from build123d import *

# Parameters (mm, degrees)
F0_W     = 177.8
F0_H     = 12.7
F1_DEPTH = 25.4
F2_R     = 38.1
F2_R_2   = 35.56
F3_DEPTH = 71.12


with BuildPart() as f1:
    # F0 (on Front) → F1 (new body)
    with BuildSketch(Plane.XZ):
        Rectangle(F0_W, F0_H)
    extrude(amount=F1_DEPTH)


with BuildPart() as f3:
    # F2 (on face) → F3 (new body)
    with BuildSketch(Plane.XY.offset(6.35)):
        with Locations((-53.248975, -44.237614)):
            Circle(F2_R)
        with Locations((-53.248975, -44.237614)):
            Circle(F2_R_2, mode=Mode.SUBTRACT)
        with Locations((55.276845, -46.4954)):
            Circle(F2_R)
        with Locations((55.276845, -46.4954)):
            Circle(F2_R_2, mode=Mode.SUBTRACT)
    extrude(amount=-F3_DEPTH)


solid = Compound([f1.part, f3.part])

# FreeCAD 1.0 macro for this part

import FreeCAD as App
import Part
import Sketcher
from FreeCAD import Vector
Q = App.Units.Quantity


def add_polygon(sketch, points):
    """Adds a closed chain of lines whose ends are joined by coincident constraints."""
    first, n = sketch.GeometryCount, len(points)
    for a, b in zip(points, points[1:] + points[:1]):
        sketch.addGeometry(Part.LineSegment(App.Vector(*a, 0), App.Vector(*b, 0)), False)
    for i in range(n):
        sketch.addConstraint(Sketcher.Constraint("Coincident", first + i, 2, first + (i + 1) % n, 1))

doc = App.newDocument("Part")
params = doc.addObject("Spreadsheet::Sheet", "Params")
for row, (alias, value) in enumerate([
    ("sketch1_width", "7 in"),
    ("sketch1_height", "0.5 in"),
    ("pad1_length", "1 in"),
    ("sketch2_diameter", "3 in"),
    ("sketch2_diameter2", "2.8 in"),
    ("pad2_length", "2.8 in"),
], start=1):
    params.set(f"A{row}", alias)
    params.set(f"B{row}", "=" + value)
    params.setAlias(f"B{row}", alias)

body = doc.addObject("PartDesign::Body", "Body")

sketch1 = body.newObject("Sketcher::SketchObject", "Sketch")
sketch1.AttachmentSupport = (doc.getObject("XZ_Plane"), [""])
sketch1.MapMode = "FlatFace"
add_polygon(sketch1, [(-89, 6), (-89, -6), (89, -6), (89, 6)])
sketch1.addConstraint(Sketcher.Constraint("Vertical", 0))
sketch1.addConstraint(Sketcher.Constraint("Horizontal", 1))
sketch1.addConstraint(Sketcher.Constraint("Vertical", 2))
sketch1.addConstraint(Sketcher.Constraint("Horizontal", 3))
sketch1.addConstraint(Sketcher.Constraint("Symmetric", 0, 2, 2, 2, -1, 1))
sketch1.addConstraint(Sketcher.Constraint("DistanceX", 1, 1, 1, 2, Q("7 in")))
sketch1.addConstraint(Sketcher.Constraint("DistanceY", 0, 2, 0, 1, Q("0.5 in")))
sketch1.setExpression("Constraints[9]", "Params.sketch1_width")
sketch1.setExpression("Constraints[10]", "Params.sketch1_height")
pad1 = body.newObject("PartDesign::Pad", "Pad")
pad1.Profile = sketch1
pad1.setExpression("Length", "Params.pad1_length")
body2 = doc.addObject("PartDesign::Body", "Body001")
body2.AllowCompound = True

sketch2 = body2.newObject("Sketcher::SketchObject", "Sketch001")
sketch2.AttachmentSupport = (doc.getObject("XY_Plane001"), [""])
sketch2.MapMode = "FlatFace"
sketch2.AttachmentOffset = App.Placement(Vector(0, 0, 0.25 * 25.4), App.Rotation())
sketch2.addGeometry(Part.Circle(Vector(-53, -44, 0), Vector(0, 0, 1), 38), False)
sketch2.addGeometry(Part.Circle(Vector(-53, -44, 0), Vector(0, 0, 1), 36), False)
sketch2.addGeometry(Part.Circle(Vector(55, -46, 0), Vector(0, 0, 1), 38), False)
sketch2.addGeometry(Part.Circle(Vector(55, -46, 0), Vector(0, 0, 1), 36), False)
sketch2.addConstraint(Sketcher.Constraint("Coincident", 1, 3, 0, 3))
sketch2.addConstraint(Sketcher.Constraint("Coincident", 3, 3, 2, 3))
sketch2.addConstraint(Sketcher.Constraint("Equal", 0, 2))
sketch2.addConstraint(Sketcher.Constraint("Equal", 1, 3))
sketch2.addConstraint(Sketcher.Constraint("Diameter", 0, Q("3 in")))
sketch2.addConstraint(Sketcher.Constraint("Diameter", 1, Q("2.8 in")))
sketch2.addConstraint(Sketcher.Constraint("DistanceY", 2, 3, -1, 1, Q("46.4954 mm")))
sketch2.addConstraint(Sketcher.Constraint("DistanceX", 0, 3, 2, 3, Q("108.52582 mm")))
sketch2.addConstraint(Sketcher.Constraint("DistanceX", 0, 3, -1, 1, Q("53.248975 mm")))
sketch2.addConstraint(Sketcher.Constraint("DistanceY", 0, 3, -1, 1, Q("44.237614 mm")))
sketch2.setExpression("Constraints[4]", "Params.sketch2_diameter")
sketch2.setExpression("Constraints[5]", "Params.sketch2_diameter2")
pad2 = body2.newObject("PartDesign::Pad", "Pad001")
pad2.Profile = sketch2
pad2.setExpression("Length", "Params.pad2_length")
pad2.Reversed = True

doc.recompute()
